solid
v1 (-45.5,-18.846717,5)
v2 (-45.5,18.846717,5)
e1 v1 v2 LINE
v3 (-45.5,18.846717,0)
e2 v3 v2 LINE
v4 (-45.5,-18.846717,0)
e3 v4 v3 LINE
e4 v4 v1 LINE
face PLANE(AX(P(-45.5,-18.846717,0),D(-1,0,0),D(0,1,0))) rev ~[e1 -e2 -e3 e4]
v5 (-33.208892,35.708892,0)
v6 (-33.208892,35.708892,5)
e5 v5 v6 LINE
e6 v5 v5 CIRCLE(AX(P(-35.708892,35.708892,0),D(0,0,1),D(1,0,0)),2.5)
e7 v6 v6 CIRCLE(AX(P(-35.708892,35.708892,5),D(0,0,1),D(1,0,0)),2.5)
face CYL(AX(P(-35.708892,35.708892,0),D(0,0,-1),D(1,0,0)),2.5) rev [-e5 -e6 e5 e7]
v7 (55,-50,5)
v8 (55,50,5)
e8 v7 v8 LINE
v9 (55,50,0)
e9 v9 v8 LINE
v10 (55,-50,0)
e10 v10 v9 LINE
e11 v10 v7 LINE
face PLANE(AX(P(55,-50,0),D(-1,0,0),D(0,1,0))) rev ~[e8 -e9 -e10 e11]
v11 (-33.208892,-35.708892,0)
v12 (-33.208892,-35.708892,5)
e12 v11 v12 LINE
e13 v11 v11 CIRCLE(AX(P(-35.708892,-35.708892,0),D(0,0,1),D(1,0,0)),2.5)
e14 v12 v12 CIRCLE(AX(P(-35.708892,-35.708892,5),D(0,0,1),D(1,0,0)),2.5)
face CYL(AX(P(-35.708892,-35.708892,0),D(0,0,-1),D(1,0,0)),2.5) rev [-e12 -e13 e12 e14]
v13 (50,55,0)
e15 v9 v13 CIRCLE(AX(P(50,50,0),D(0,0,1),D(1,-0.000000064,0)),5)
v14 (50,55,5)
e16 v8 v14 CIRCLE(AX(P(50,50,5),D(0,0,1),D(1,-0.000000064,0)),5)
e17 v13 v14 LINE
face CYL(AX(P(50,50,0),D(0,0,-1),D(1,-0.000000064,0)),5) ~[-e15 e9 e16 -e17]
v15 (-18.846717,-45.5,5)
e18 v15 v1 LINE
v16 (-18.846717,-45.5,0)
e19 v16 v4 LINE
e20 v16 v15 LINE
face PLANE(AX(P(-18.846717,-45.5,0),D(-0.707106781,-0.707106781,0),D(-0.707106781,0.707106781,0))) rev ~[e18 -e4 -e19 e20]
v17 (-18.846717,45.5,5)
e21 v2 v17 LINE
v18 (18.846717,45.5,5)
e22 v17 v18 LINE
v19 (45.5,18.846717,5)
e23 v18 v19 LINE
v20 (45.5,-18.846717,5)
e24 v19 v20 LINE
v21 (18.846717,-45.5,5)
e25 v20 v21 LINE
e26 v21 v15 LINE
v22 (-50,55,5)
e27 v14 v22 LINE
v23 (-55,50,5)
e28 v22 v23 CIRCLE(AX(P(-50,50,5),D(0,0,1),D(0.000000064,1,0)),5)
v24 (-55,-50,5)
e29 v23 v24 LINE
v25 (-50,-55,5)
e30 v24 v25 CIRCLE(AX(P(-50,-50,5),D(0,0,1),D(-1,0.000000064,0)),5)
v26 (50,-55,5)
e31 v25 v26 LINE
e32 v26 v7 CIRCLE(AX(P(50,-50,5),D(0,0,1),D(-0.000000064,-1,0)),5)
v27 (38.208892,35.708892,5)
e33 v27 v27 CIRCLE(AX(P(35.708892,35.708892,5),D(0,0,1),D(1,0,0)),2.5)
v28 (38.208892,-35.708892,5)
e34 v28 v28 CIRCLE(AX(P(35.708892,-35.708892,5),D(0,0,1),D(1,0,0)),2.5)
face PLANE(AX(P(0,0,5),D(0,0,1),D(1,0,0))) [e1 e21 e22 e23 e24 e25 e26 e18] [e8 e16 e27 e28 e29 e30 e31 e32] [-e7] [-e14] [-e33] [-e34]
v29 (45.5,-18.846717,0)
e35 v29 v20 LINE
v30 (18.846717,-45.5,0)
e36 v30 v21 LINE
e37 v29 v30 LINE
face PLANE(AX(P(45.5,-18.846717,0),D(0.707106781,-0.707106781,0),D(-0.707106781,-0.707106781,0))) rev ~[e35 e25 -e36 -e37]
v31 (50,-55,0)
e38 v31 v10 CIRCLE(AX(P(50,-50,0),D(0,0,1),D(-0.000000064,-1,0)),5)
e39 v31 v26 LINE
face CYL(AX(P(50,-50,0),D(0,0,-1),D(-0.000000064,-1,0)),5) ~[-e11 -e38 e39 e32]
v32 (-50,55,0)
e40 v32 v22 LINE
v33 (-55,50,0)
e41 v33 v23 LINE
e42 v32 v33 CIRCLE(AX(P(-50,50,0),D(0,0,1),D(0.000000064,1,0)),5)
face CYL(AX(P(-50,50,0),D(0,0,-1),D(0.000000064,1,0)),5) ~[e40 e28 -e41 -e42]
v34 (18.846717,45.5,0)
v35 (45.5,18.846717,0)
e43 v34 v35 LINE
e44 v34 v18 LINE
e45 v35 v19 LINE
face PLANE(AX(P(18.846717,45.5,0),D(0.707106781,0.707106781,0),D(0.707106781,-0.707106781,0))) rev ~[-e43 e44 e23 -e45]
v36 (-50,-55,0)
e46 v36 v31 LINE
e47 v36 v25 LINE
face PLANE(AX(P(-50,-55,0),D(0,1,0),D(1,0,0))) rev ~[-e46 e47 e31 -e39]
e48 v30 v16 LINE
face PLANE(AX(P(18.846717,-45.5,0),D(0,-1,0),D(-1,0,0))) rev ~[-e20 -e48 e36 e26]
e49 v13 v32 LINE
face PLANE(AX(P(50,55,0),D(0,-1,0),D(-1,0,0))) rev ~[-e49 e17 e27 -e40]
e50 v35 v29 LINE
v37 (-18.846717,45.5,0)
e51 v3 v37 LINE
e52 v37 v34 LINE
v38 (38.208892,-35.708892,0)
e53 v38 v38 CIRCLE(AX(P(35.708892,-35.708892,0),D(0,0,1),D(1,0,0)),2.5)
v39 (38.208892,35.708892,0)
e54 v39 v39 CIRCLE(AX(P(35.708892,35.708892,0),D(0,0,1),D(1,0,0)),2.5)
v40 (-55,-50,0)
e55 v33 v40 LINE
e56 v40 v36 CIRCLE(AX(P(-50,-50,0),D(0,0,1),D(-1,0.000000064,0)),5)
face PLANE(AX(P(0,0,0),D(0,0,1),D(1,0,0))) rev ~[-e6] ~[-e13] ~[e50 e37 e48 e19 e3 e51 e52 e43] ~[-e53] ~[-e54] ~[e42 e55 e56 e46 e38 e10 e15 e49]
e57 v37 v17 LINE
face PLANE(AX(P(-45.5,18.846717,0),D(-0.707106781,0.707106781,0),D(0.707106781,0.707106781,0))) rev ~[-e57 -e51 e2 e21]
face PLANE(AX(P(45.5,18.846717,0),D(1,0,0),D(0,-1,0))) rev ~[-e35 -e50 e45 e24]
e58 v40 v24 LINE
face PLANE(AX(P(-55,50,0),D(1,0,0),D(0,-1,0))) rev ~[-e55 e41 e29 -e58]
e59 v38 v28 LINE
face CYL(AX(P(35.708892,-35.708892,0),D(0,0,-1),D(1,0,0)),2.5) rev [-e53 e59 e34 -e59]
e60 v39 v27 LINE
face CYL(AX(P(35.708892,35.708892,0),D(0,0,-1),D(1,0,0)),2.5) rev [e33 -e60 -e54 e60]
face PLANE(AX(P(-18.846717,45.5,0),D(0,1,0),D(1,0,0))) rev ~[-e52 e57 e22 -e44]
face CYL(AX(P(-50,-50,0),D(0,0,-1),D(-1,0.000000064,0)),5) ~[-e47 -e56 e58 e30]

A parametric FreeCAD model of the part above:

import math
import FreeCAD as App
import Part
import Sketcher
from FreeCAD import Vector
Q = App.Units.Quantity

doc = App.newDocument("Part")
body = doc.addObject("PartDesign::Body", "Body")

# Sketch on XY plane
sketch1 = body.newObject("Sketcher::SketchObject", "Sketch")
sketch1.AttachmentSupport = (doc.getObject("XY_Plane"), [""])
sketch1.MapMode = "FlatFace"
sketch1.addGeometry([
    Part.LineSegment(Vector(-50, -55, 0), Vector(50, -55, 0)),  # 0
    Part.ArcOfCircle(Part.Circle(Vector(50, -50, 0), Vector(0, 0, 1), 5), math.radians(-90), math.radians(0)),  # 1
    Part.LineSegment(Vector(55, -50, 0), Vector(55, 50, 0)),  # 2
    Part.ArcOfCircle(Part.Circle(Vector(50, 50, 0), Vector(0, 0, 1), 5), math.radians(0), math.radians(90)),  # 3
    Part.LineSegment(Vector(50, 55, 0), Vector(-50, 55, 0)),  # 4
    Part.ArcOfCircle(Part.Circle(Vector(-50, 50, 0), Vector(0, 0, 1), 5), math.radians(90), math.radians(180)),  # 5
    Part.LineSegment(Vector(-55, 50, 0), Vector(-55, -50, 0)),  # 6
    Part.ArcOfCircle(Part.Circle(Vector(-50, -50, 0), Vector(0, 0, 1), 5), math.radians(180), math.radians(270)),  # 7
    Part.Circle(Vector(-35.7, -35.7, 0), Vector(0, 0, 1), 2.5),  # 8
    Part.Circle(Vector(35.7, -35.7, 0), Vector(0, 0, 1), 2.5),  # 9
    Part.Circle(Vector(-35.7, 35.7, 0), Vector(0, 0, 1), 2.5),  # 10
    Part.LineSegment(Vector(-18.8, 45.5, 0), Vector(18.8, 45.5, 0)),  # 11
    Part.LineSegment(Vector(18.8, 45.5, 0), Vector(45.5, 18.8, 0)),  # 12
    Part.LineSegment(Vector(45.5, 18.8, 0), Vector(45.5, -18.8, 0)),  # 13
    Part.LineSegment(Vector(45.5, -18.8, 0), Vector(18.8, -45.5, 0)),  # 14
    Part.LineSegment(Vector(18.8, -45.5, 0), Vector(-18.8, -45.5, 0)),  # 15
    Part.LineSegment(Vector(-18.8, -45.5, 0), Vector(-45.5, -18.8, 0)),  # 16
    Part.LineSegment(Vector(-45.5, -18.8, 0), Vector(-45.5, 18.8, 0)),  # 17
    Part.LineSegment(Vector(-45.5, 18.8, 0), Vector(-18.8, 45.5, 0)),  # 18
    Part.Circle(Vector(35.7, 35.7, 0), Vector(0, 0, 1), 2.5),  # 19
], False)
sketch1.addConstraint([
    Sketcher.Constraint("Tangent", 0, 2, 1, 1),
    Sketcher.Constraint("Tangent", 1, 2, 2, 1),
    Sketcher.Constraint("Tangent", 2, 2, 3, 1),
    Sketcher.Constraint("Tangent", 3, 2, 4, 1),
    Sketcher.Constraint("Tangent", 4, 2, 5, 1),
    Sketcher.Constraint("Tangent", 5, 2, 6, 1),
    Sketcher.Constraint("Tangent", 6, 2, 7, 1),
    Sketcher.Constraint("Tangent", 7, 2, 0, 1),
    Sketcher.Constraint("Coincident", 11, 2, 12, 1),
    Sketcher.Constraint("Coincident", 12, 2, 13, 1),
    Sketcher.Constraint("Coincident", 13, 2, 14, 1),
    Sketcher.Constraint("Coincident", 14, 2, 15, 1),
    Sketcher.Constraint("Coincident", 15, 2, 16, 1),
    Sketcher.Constraint("Coincident", 16, 2, 17, 1),
    Sketcher.Constraint("Coincident", 17, 2, 18, 1),
    Sketcher.Constraint("Coincident", 18, 2, 11, 1),
    Sketcher.Constraint("Horizontal", 0),
    Sketcher.Constraint("Vertical", 2),
    Sketcher.Constraint("Horizontal", 4),
    Sketcher.Constraint("Vertical", 6),
    Sketcher.Constraint("Horizontal", 11),
    Sketcher.Constraint("Vertical", 13),
    Sketcher.Constraint("Horizontal", 15),
    Sketcher.Constraint("Vertical", 17),
    Sketcher.Constraint("Equal", 1, 3),
    Sketcher.Constraint("Equal", 3, 5),
    Sketcher.Constraint("Equal", 5, 7),
    Sketcher.Constraint("Equal", 8, 9),
    Sketcher.Constraint("Equal", 9, 10),
    Sketcher.Constraint("Equal", 10, 19),
    Sketcher.Constraint("Symmetric", 1, 3, 5, 3, -1, 1),
    Sketcher.Constraint("Symmetric", 9, 3, 10, 3, -1, 1),
    Sketcher.Constraint("Symmetric", 8, 3, 19, 3, -1, 1),
    Sketcher.Constraint("Symmetric", 11, 2, 15, 2, -1, 1),
    Sketcher.Constraint("Symmetric", 12, 2, 16, 2, -1, 1),
    Sketcher.Constraint("Symmetric", 8, 3, 9, 3, -2),
    Sketcher.Constraint("Perpendicular", 12, 14),
    Sketcher.Constraint("Perpendicular", 16, 18),
    Sketcher.Constraint("Horizontal", 13, 2, 16, 2),
    Sketcher.Constraint("Horizontal", 12, 2, 17, 2),
    Sketcher.Constraint("Vertical", 11, 2, 14, 2),
    Sketcher.Constraint("Equal", 4, 2),
    Sketcher.Constraint("Equal", 15, 13),
    Sketcher.Constraint("Diameter", 8, Q("5 mm")),
    Sketcher.Constraint("Radius", 1, Q("5 mm")),
    Sketcher.Constraint("DistanceX", 0, 1, 0, 2, Q("100 mm")),
    Sketcher.Constraint("DistanceY", -1, 1, 11, 2, Q("45.5 mm")),
    Sketcher.Constraint("DistanceX", 11, 1, 11, 2, Q("37.693434 mm")),
    Sketcher.Constraint("DistanceX", 7, 3, 8, 3, Q("14.291108 mm")),
    Sketcher.Constraint("DistanceY", 7, 3, 8, 3, Q("14.291108 mm")),
])
pad1 = body.newObject("PartDesign::Pad", "Pad")
pad1.Profile = sketch1
pad1.Length = 5

doc.recompute()
